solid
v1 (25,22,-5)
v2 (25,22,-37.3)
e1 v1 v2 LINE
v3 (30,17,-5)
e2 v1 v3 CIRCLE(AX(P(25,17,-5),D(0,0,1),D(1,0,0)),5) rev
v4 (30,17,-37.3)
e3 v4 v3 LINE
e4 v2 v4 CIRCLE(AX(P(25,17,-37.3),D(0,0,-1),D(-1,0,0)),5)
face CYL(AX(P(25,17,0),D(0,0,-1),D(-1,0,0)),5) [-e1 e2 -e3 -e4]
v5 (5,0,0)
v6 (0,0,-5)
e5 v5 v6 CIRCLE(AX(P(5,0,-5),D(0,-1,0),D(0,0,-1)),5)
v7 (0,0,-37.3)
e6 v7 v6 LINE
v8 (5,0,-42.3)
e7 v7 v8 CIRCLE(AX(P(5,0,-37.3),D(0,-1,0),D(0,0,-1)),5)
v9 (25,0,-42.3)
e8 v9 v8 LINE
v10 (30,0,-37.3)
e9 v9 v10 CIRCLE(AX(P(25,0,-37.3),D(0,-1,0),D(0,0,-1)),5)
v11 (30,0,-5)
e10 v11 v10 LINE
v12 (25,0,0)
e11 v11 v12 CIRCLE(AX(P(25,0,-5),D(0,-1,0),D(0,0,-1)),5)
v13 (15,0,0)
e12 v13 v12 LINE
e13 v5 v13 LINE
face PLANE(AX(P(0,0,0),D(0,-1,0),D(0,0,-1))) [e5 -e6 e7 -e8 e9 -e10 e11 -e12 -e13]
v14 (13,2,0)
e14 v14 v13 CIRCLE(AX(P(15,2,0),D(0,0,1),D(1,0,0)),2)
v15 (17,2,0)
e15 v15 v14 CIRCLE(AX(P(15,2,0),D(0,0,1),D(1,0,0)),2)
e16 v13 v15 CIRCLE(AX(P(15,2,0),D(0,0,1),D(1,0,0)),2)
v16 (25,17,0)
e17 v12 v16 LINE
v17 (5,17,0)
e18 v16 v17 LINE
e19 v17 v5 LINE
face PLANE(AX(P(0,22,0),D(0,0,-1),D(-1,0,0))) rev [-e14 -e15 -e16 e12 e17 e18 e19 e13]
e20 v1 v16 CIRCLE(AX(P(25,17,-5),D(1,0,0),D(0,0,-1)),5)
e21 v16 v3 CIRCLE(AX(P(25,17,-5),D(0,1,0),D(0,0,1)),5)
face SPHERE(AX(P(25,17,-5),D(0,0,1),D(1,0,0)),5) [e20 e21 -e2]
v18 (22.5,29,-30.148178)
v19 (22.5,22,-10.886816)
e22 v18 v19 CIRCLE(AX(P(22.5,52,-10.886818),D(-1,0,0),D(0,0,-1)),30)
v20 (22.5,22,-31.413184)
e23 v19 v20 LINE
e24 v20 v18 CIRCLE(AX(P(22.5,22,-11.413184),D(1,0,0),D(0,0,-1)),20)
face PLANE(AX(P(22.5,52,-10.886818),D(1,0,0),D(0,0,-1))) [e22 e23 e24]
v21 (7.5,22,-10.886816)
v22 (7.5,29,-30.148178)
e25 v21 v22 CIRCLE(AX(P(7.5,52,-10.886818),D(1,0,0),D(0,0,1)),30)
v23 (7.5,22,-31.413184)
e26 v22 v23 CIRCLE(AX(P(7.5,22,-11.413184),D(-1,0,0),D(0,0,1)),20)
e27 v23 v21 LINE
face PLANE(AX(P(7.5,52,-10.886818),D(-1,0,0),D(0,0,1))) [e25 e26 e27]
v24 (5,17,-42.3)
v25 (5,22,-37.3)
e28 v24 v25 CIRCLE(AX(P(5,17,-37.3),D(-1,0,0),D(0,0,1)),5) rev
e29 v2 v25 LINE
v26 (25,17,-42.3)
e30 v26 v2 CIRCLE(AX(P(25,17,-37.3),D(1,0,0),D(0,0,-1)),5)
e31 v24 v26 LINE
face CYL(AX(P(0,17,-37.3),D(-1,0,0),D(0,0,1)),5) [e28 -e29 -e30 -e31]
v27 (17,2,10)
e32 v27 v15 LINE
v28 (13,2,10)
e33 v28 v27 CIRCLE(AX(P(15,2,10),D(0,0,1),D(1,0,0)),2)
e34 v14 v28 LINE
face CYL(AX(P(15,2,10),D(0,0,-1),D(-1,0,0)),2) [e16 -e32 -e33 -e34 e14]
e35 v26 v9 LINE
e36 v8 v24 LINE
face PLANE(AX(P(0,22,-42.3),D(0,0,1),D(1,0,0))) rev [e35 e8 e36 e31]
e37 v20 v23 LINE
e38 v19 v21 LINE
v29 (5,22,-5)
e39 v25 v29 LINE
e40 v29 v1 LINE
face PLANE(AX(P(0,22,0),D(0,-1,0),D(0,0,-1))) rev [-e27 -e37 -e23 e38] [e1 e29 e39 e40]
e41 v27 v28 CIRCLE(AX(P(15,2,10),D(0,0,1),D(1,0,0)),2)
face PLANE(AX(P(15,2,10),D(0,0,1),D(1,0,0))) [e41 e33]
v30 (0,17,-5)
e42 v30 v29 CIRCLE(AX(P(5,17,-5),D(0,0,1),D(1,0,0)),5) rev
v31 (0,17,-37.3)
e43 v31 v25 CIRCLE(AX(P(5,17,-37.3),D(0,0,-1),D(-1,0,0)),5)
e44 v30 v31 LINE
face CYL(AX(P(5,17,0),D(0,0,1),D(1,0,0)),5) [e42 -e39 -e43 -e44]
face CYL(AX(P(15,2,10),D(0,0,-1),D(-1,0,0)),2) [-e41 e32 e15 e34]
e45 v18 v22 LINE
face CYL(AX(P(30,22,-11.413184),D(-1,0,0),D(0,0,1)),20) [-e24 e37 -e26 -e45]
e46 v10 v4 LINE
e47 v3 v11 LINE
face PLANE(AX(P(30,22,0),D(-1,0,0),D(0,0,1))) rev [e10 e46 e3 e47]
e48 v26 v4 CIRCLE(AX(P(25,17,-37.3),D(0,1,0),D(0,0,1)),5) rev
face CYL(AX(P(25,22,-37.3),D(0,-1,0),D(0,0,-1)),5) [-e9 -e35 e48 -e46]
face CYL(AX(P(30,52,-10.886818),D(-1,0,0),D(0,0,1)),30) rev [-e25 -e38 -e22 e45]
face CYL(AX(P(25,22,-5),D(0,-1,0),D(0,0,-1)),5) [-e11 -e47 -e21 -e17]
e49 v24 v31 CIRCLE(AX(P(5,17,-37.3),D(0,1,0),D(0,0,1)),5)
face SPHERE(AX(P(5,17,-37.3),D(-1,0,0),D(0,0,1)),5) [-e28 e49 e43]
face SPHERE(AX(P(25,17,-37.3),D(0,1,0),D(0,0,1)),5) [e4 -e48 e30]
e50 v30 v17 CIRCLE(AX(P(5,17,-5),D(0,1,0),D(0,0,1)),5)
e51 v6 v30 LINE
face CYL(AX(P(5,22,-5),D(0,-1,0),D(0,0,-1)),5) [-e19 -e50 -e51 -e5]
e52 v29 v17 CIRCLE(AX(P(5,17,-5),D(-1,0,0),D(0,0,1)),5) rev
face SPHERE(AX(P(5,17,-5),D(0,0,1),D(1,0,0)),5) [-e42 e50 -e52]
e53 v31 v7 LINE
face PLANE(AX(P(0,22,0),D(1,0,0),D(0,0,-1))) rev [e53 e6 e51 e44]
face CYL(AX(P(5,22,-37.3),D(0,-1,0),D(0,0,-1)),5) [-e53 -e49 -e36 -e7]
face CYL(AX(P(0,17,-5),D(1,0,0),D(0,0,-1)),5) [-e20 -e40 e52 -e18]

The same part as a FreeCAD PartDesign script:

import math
import FreeCAD as App
import Part
import Sketcher


def edges_at(feature, points):
    """Names of the edges that pass closest to the given points."""
    edges = feature.Shape.Edges
    near = lambda p: min(range(len(edges)), key=lambda i: edges[i].distToShape(Part.Vertex(*p))[0])
    return sorted({f"Edge{near(p) + 1}" for p in points})


def add_polygon(sketch, points):
    """Adds a closed chain of lines whose ends are joined by coincident constraints."""
    first, n = sketch.GeometryCount, len(points)
    for a, b in zip(points, points[1:] + points[:1]):
        sketch.addGeometry(Part.LineSegment(App.Vector(*a, 0), App.Vector(*b, 0)), False)
    for i in range(n):
        sketch.addConstraint(Sketcher.Constraint("Coincident", first + i, 2, first + (i + 1) % n, 1))

doc = App.newDocument("Part")
params = doc.addObject("Spreadsheet::Sheet", "Params")
for row, (alias, value) in enumerate([
    ("sketch1_width", "30 mm"),
    ("sketch1_height", "42.3 mm"),
    ("pad1_length", "22 mm"),
    ("sketch2_diameter", "4 mm"),
    ("pad2_length", "10 mm"),
    ("fillet_radius", "5 mm"),
    ("sketch3_radius", "20 mm"),
    ("sketch3_radius2", "30 mm"),
    ("pad3_length", "30 mm"),
    ("sketch4_radius", "30 mm"),
    ("sketch4_radius2", "20 mm"),
    ("pocket1_length", "7.5 mm"),
    ("sketch5_radius", "20 mm"),
    ("sketch5_radius2", "30 mm"),
    ("pocket2_length", "7.5 mm"),
], start=1):
    params.set(f"A{row}", alias)
    params.set(f"B{row}", "=" + value)
    params.setAlias(f"B{row}", alias)

body = doc.addObject("PartDesign::Body", "Body")

sketch1 = body.newObject("Sketcher::SketchObject", "Sketch")
sketch1.AttachmentSupport = (doc.getObject("XZ_Plane"), [""])
sketch1.MapMode = "FlatFace"
add_polygon(sketch1, [(0, -42), (0, 0), (30, 0), (30, -42)])
sketch1.addConstraint([
    Sketcher.Constraint("Vertical", 0),
    Sketcher.Constraint("Horizontal", 1),
    Sketcher.Constraint("Vertical", 2),
    Sketcher.Constraint("Horizontal", 3),
    Sketcher.Constraint("Coincident", 0, 2, -1, 1),
    Sketcher.Constraint("DistanceX", 1, 1, 1, 2, 30.0),
    Sketcher.Constraint("DistanceY", 0, 1, 0, 2, 42.3),
])
sketch1.setExpression("Constraints[9]", "Params.sketch1_width")
sketch1.setExpression("Constraints[10]", "Params.sketch1_height")
pad1 = body.newObject("PartDesign::Pad", "Pad")
pad1.Profile = sketch1
pad1.setExpression("Length", "Params.pad1_length")
pad1.Reversed = True

sketch2 = body.newObject("Sketcher::SketchObject", "Sketch001")
sketch2.AttachmentSupport = (doc.getObject("XY_Plane"), [""])
sketch2.MapMode = "FlatFace"
sketch2.addGeometry(Part.Circle(App.Vector(15, 2, 0), App.Vector(0, 0, 1), 2), False)
sketch2.addConstraint([
    Sketcher.Constraint("Diameter", 0, 4.0),
    Sketcher.Constraint("DistanceX", -1, 1, 0, 3, 15.0),
    Sketcher.Constraint("DistanceY", -1, 1, 0, 3, 2.0),
])
sketch2.setExpression("Constraints[0]", "Params.sketch2_diameter")
pad2 = body.newObject("PartDesign::Pad", "Pad001")
pad2.Profile = sketch2
pad2.setExpression("Length", "Params.pad2_length")
doc.recompute()

fillet = body.newObject("PartDesign::Fillet", "Fillet")
fillet.Base = (pad2, edges_at(pad2, [
    (30, 22, -21.15),
    (15, 22, -42.3),
    (0, 22, -21.15),
    (0, 11, -42.3),
    (30, 11, -42.3),
    (30, 11, 0),
    (0, 11, 0),
    (15, 22, 0),
]))
fillet.setExpression("Radius", "Params.fillet_radius")

sketch3 = body.newObject("Sketcher::SketchObject", "Sketch002")
sketch3.AttachmentSupport = (doc.getObject("YZ_Plane"), [""])
sketch3.MapMode = "FlatFace"
sketch3.addGeometry([
    Part.LineSegment(App.Vector(22, -11, 0), App.Vector(22, -31, 0)),
    Part.ArcOfCircle(Part.Circle(App.Vector(22, -11, 0), App.Vector(0, 0, 1), 20), math.radians(-90), math.radians(-70)),
    Part.ArcOfCircle(Part.Circle(App.Vector(52, -11, 0), App.Vector(0, 0, 1), 30), math.radians(180), math.radians(220)),
], False)
sketch3.addConstraint([
    Sketcher.Constraint("Coincident", 0, 2, 1, 1),
    Sketcher.Constraint("Coincident", 1, 2, 2, 2),
    Sketcher.Constraint("Tangent", 2, 1, 0, 1),
    Sketcher.Constraint("Vertical", 0),
    Sketcher.Constraint("Vertical", 1, 3, 0, 2),
    Sketcher.Constraint("Radius", 1, 20.0),
    Sketcher.Constraint("Radius", 2, 30.0),
    Sketcher.Constraint("DistanceX", -1, 1, 1, 3, 22.0),
    Sketcher.Constraint("DistanceX", -1, 1, 1, 2, 29.0),
    Sketcher.Constraint("DistanceY", 1, 2, -1, 1, 30.148178),
])
sketch3.setExpression("Constraints[5]", "Params.sketch3_radius")
sketch3.setExpression("Constraints[6]", "Params.sketch3_radius2")
pad3 = body.newObject("PartDesign::Pad", "Pad002")
pad3.Profile = sketch3
pad3.setExpression("Length", "Params.pad3_length")

sketch4 = body.newObject("Sketcher::SketchObject", "Sketch003")
sketch4.AttachmentSupport = (doc.getObject("YZ_Plane"), [""])
sketch4.MapMode = "FlatFace"
sketch4.addGeometry([
    Part.LineSegment(App.Vector(22, -31, 0), App.Vector(22, -11, 0)),
    Part.ArcOfCircle(Part.Circle(App.Vector(52, -11, 0), App.Vector(0, 0, 1), 30), math.radians(180), math.radians(220)),
    Part.ArcOfCircle(Part.Circle(App.Vector(22, -11, 0), App.Vector(0, 0, 1), 20), math.radians(-90), math.radians(-70)),
], False)
sketch4.addConstraint([
    Sketcher.Constraint("Tangent", 0, 2, 1, 1),
    Sketcher.Constraint("Coincident", 1, 2, 2, 2),
    Sketcher.Constraint("Coincident", 2, 1, 0, 1),
    Sketcher.Constraint("Vertical", 0),
    Sketcher.Constraint("Vertical", 2, 3, 0, 2),
    Sketcher.Constraint("Radius", 1, 30.0),
    Sketcher.Constraint("Radius", 2, 20.0),
    Sketcher.Constraint("DistanceX", -1, 1, 1, 3, 52.0),
    Sketcher.Constraint("DistanceX", -1, 1, 1, 2, 29.0),
    Sketcher.Constraint("DistanceY", 1, 2, -1, 1, 30.148178),
])
sketch4.setExpression("Constraints[5]", "Params.sketch4_radius")
sketch4.setExpression("Constraints[6]", "Params.sketch4_radius2")
pocket1 = body.newObject("PartDesign::Pocket", "Pocket")
pocket1.Profile = sketch4
pocket1.setExpression("Length", "Params.pocket1_length")
pocket1.Reversed = True

sketch5 = body.newObject("Sketcher::SketchObject", "Sketch004")
sketch5.AttachmentSupport = (doc.getObject("YZ_Plane"), [""])
sketch5.MapMode = "FlatFace"
sketch5.AttachmentOffset = App.Placement(App.Vector(0, 0, 22.5), App.Rotation())
sketch5.addGeometry([
    Part.LineSegment(App.Vector(22, -11, 0), App.Vector(22, -31, 0)),
    Part.ArcOfCircle(Part.Circle(App.Vector(22, -11, 0), App.Vector(0, 0, 1), 20), math.radians(-90), math.radians(-70)),
    Part.ArcOfCircle(Part.Circle(App.Vector(52, -11, 0), App.Vector(0, 0, 1), 30), math.radians(180), math.radians(220)),
], False)
sketch5.addConstraint([
    Sketcher.Constraint("Coincident", 0, 2, 1, 1),
    Sketcher.Constraint("Coincident", 1, 2, 2, 2),
    Sketcher.Constraint("Tangent", 2, 1, 0, 1),
    Sketcher.Constraint("Vertical", 0),
    Sketcher.Constraint("Vertical", 1, 3, 0, 2),
    Sketcher.Constraint("Radius", 1, 20.0),
    Sketcher.Constraint("Radius", 2, 30.0),
    Sketcher.Constraint("DistanceX", -1, 1, 1, 3, 22.0),
    Sketcher.Constraint("DistanceX", -1, 1, 1, 2, 29.0),
    Sketcher.Constraint("DistanceY", 1, 2, -1, 1, 30.148178),
])
sketch5.setExpression("Constraints[5]", "Params.sketch5_radius")
sketch5.setExpression("Constraints[6]", "Params.sketch5_radius2")
pocket2 = body.newObject("PartDesign::Pocket", "Pocket001")
pocket2.Profile = sketch5
pocket2.setExpression("Length", "Params.pocket2_length")
pocket2.Reversed = True

doc.recompute()
